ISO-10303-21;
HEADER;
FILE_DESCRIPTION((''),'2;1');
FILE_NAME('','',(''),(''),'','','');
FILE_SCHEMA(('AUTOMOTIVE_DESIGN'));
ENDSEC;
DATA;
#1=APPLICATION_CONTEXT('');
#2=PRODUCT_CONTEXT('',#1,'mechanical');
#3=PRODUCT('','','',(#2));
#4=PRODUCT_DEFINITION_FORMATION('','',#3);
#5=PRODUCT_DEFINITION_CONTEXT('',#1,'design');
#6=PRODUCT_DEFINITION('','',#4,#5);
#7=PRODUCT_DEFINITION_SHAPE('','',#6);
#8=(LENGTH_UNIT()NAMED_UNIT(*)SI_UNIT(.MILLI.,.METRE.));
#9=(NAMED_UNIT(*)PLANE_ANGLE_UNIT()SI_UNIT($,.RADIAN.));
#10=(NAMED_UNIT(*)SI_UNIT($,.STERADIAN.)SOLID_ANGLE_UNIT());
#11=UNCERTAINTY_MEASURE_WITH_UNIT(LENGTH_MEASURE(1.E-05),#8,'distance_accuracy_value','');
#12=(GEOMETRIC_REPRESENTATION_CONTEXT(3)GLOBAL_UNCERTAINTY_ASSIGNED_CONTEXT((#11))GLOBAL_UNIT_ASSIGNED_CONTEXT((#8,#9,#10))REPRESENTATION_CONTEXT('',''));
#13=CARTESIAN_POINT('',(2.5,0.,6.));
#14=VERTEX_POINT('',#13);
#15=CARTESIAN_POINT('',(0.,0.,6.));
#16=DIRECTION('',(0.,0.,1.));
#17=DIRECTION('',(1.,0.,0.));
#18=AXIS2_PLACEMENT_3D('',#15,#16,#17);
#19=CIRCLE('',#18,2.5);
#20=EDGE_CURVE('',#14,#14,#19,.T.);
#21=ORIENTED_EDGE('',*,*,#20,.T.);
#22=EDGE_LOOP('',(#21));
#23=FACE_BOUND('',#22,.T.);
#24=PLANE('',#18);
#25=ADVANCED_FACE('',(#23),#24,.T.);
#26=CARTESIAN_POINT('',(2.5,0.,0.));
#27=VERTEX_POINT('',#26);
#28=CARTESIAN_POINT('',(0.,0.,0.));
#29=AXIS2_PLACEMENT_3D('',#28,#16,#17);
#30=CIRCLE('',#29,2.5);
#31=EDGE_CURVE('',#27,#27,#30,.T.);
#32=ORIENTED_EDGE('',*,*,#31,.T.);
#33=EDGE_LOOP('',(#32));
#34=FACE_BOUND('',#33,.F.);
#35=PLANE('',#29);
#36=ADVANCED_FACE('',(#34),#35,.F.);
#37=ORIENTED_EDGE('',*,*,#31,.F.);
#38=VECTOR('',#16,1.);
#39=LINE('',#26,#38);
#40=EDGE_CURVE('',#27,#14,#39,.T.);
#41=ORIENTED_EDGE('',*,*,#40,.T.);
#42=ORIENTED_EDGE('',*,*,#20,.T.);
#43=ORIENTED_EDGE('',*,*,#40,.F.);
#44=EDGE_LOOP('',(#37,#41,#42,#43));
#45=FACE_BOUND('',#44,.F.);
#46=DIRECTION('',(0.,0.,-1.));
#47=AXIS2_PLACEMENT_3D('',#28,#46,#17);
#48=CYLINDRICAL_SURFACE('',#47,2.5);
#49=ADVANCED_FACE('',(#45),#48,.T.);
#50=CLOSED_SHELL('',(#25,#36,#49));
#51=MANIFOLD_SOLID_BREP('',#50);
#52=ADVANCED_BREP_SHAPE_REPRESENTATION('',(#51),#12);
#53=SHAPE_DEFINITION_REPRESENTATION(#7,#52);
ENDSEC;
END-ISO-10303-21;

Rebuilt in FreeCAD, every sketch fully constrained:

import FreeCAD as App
import Part
import Sketcher
from FreeCAD import Vector

doc = App.newDocument("Part")
params = doc.addObject("Spreadsheet::Sheet", "Params")
for row, (alias, value) in enumerate([
    ("sketch1_diameter", "5 mm"),
    ("pad1_length", "6 mm"),
], start=1):
    params.set(f"A{row}", alias)
    params.set(f"B{row}", "=" + value)
    params.setAlias(f"B{row}", alias)

body = doc.addObject("PartDesign::Body", "Body")

sketch1 = doc.addObject("Sketcher::SketchObject", "Sketch")
body.addObject(sketch1)
sketch1.AttachmentSupport = (doc.XY_Plane, [""])
sketch1.MapMode = "FlatFace"
sketch1.addGeometry(Part.Circle(Vector(0, 0, 0), Vector(0, 0, 1), 2.5), False)
sketch1.addConstraint([
    Sketcher.Constraint("Coincident", 0, 3, -1, 1),
    Sketcher.Constraint("Diameter", 0, 5.0),
])
sketch1.setExpression("Constraints[1]", "Params.sketch1_diameter")
pad1 = doc.addObject("PartDesign::Pad", "Pad")
body.addObject(pad1)
pad1.Profile = sketch1
pad1.setExpression("Length", "Params.pad1_length")

doc.recompute()
